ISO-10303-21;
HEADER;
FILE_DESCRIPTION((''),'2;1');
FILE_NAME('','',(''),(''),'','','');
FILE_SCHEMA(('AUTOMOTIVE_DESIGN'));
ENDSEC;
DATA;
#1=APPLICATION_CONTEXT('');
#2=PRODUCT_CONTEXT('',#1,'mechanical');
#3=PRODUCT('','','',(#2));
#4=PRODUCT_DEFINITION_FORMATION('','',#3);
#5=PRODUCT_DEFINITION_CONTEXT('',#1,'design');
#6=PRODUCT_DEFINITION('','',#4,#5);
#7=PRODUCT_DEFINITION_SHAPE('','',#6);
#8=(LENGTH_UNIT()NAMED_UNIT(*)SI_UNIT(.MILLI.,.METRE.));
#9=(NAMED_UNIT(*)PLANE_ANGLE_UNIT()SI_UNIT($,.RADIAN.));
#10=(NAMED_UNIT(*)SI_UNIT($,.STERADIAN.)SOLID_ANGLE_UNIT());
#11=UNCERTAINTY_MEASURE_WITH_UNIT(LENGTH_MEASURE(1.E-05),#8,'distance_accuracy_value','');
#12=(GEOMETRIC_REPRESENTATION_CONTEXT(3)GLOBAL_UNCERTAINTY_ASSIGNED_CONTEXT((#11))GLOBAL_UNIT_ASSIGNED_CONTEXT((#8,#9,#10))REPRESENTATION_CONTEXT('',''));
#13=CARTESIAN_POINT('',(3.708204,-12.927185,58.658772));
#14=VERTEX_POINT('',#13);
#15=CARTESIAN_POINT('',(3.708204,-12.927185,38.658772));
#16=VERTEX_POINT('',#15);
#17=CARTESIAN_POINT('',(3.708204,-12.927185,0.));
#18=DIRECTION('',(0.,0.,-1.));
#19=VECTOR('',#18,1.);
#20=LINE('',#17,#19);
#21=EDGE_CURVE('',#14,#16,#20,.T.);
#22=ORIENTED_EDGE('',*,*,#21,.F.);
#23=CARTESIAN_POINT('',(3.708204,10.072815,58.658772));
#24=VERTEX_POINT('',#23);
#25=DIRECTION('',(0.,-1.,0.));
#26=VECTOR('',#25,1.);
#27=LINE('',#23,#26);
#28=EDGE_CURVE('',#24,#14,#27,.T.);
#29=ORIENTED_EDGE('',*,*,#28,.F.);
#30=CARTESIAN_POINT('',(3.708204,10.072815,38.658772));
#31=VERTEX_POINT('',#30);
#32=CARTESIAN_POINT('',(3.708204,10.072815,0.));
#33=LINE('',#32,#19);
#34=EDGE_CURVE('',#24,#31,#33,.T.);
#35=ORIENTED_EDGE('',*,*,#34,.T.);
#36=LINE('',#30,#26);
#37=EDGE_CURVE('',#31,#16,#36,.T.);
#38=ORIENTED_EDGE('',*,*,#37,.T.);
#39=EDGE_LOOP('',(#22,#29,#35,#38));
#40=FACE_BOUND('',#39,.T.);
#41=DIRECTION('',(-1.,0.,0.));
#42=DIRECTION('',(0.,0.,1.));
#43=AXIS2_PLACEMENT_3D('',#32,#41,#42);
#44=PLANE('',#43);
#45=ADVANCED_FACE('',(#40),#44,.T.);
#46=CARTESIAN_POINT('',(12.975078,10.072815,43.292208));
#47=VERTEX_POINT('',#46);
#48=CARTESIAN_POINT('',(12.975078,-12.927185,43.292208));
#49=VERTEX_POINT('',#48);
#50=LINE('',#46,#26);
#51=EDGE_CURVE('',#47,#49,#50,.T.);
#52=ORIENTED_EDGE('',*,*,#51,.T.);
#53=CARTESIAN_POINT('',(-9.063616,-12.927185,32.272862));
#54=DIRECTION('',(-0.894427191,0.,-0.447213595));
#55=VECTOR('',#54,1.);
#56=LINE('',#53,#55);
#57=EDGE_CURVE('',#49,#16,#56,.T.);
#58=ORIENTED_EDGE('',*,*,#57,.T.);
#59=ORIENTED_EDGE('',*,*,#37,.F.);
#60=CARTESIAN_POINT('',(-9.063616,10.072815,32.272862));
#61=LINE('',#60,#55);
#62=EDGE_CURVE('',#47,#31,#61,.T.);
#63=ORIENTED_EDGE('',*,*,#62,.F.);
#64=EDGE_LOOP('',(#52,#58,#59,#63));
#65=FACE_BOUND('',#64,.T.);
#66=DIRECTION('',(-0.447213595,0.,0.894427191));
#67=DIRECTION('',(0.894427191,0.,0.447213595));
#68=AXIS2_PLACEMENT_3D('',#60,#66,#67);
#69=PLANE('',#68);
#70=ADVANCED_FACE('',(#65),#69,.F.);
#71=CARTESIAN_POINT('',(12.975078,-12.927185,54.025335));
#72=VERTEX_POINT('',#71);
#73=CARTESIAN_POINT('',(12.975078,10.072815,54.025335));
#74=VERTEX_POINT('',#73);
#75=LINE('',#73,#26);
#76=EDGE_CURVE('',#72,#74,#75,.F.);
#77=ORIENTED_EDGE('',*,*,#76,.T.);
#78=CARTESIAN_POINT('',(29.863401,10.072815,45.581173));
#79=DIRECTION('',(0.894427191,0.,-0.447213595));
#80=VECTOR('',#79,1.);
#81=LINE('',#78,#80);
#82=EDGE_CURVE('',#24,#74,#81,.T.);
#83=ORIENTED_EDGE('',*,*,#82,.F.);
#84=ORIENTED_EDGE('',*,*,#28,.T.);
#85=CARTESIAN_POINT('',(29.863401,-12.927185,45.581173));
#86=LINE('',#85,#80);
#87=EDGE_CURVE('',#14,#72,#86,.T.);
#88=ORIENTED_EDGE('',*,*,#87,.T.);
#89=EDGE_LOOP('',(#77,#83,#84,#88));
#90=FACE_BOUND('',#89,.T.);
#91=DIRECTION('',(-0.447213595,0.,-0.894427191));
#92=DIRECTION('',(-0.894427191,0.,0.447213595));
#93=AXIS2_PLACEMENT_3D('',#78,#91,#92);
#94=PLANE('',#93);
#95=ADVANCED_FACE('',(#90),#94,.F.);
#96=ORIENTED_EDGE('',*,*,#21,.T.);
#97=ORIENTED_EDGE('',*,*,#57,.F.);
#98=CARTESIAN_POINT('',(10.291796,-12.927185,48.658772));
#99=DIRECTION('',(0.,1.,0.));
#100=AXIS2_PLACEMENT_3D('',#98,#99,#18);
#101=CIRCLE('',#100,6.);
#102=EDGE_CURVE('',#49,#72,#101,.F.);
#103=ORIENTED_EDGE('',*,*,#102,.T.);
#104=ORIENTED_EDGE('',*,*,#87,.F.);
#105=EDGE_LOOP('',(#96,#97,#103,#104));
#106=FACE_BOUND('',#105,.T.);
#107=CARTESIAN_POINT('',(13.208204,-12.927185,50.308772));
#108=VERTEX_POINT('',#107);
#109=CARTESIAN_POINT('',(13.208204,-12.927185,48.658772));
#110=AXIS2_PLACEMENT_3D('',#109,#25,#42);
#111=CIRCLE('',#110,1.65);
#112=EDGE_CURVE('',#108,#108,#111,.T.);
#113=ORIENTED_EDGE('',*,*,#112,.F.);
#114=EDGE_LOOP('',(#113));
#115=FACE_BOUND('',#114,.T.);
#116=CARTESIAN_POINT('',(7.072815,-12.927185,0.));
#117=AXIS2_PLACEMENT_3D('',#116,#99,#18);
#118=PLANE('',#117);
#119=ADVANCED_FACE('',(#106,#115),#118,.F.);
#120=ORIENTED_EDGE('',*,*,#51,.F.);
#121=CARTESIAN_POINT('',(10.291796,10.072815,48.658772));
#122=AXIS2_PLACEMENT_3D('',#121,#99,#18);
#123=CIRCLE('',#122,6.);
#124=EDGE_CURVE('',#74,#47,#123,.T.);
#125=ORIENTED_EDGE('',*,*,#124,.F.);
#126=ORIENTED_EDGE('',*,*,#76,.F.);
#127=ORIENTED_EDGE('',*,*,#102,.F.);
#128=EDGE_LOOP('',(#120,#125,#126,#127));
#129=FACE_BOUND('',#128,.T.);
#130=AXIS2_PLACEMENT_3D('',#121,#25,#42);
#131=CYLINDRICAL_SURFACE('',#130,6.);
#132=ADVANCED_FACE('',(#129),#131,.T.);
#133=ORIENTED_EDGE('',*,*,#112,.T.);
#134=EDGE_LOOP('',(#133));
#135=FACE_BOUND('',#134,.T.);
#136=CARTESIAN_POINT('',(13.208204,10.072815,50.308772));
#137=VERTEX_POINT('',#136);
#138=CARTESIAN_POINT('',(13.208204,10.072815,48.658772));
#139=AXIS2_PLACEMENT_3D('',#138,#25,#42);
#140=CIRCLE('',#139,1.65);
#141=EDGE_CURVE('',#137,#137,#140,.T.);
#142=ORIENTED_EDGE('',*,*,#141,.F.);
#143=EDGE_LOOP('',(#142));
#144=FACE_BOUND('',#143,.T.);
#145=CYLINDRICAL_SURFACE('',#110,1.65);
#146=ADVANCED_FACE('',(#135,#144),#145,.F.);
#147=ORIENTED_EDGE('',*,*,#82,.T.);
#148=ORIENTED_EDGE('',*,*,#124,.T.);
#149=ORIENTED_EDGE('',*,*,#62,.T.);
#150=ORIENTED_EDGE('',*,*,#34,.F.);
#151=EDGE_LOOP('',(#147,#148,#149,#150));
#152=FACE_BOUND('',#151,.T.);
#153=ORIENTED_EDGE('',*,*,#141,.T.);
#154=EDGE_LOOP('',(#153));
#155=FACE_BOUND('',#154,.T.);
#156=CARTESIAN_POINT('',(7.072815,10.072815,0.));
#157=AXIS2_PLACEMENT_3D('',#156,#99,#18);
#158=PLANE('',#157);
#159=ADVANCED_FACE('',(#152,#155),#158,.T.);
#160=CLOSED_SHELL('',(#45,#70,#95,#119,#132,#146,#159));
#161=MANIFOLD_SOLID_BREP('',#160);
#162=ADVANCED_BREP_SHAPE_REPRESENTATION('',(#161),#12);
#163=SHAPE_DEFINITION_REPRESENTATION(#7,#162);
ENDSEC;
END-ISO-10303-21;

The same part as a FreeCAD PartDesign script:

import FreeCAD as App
import Part
import Sketcher
from FreeCAD import Vector
Q = App.Units.Quantity


def edges_at(feature, points):
    """Names of the edges that pass closest to the given points."""
    edges = feature.Shape.Edges
    near = lambda p: min(range(len(edges)), key=lambda i: edges[i].distToShape(Part.Vertex(*p))[0])
    return sorted({f"Edge{near(p) + 1}" for p in points})


def add_polygon(sketch, points):
    """Adds a closed chain of lines whose ends are joined by coincident constraints."""
    first, n = sketch.GeometryCount, len(points)
    for a, b in zip(points, points[1:] + points[:1]):
        sketch.addGeometry(Part.LineSegment(App.Vector(*a, 0), App.Vector(*b, 0)), False)
    for i in range(n):
        sketch.addConstraint(Sketcher.Constraint("Coincident", first + i, 2, first + (i + 1) % n, 1))

doc = App.newDocument("Part")
body = doc.addObject("PartDesign::Body", "Body")

# Sketch on YZ plane
sketch1 = body.newObject("Sketcher::SketchObject", "Sketch")
sketch1.AttachmentSupport = (doc.getObject("YZ_Plane"), [""])
sketch1.MapMode = "FlatFace"
add_polygon(sketch1, [(3.364611, 38.658772), (3.364611, 58.658772), (-16.635389, 48.658772)])  # lines 0-2
sketch1.addConstraint(Sketcher.Constraint("Vertical", 0))
sketch1.addConstraint(Sketcher.Constraint("Equal", 1, 2))
sketch1.addConstraint(Sketcher.Constraint("DistanceY", 0, 1, 0, 2, Q("20 mm")))
sketch1.addConstraint(Sketcher.Constraint("DistanceX", 1, 2, 0, 2, Q("20 mm")))
sketch1.addConstraint(Sketcher.Constraint("DistanceX", -1, 1, 0, 2, Q("3.364611 mm")))
sketch1.addConstraint(Sketcher.Constraint("DistanceY", -1, 1, 0, 2, Q("58.658772 mm")))
pad1 = body.newObject("PartDesign::Pad", "Pad")
pad1.Profile = sketch1
pad1.Length = 23
doc.recompute()

fillet = body.newObject("PartDesign::Fillet", "Fillet")
fillet.Base = (pad1, edges_at(pad1, [(11.5, -16.635, 48.659)]))
fillet.Radius = 6

# Sketch on YZ plane
sketch2 = body.newObject("Sketcher::SketchObject", "Sketch001")
sketch2.AttachmentSupport = (doc.getObject("YZ_Plane"), [""])
sketch2.MapMode = "FlatFace"
sketch2.addGeometry(Part.Circle(Vector(-6.135389, 48.658772, 0), Vector(0, 0, 1), 1.65), False)
sketch2.addConstraint(Sketcher.Constraint("Diameter", 0, Q("3.3 mm")))
sketch2.addConstraint(Sketcher.Constraint("DistanceX", 0, 3, -1, 1, Q("6.135389 mm")))
sketch2.addConstraint(Sketcher.Constraint("DistanceY", -1, 1, 0, 3, Q("48.658772 mm")))
doc.recompute()
hole = body.newObject("PartDesign::Hole", "Hole")
hole.Profile = sketch2
hole.ThreadType = "None"
hole.Diameter = 3.3
hole.DepthType = "ThroughAll"
hole.Reversed = True
body2 = doc.addObject("PartDesign::Body", "Body001")
doc.recompute()

body.Placement = App.Placement(Vector(7.072815, -12.927185, 0), App.Rotation(Vector(0, 0, 1), 90))
boolean = body2.newObject("PartDesign::Boolean", "Boolean")
boolean.Type = "Fuse"
boolean.addObjects([body])

doc.recompute()
